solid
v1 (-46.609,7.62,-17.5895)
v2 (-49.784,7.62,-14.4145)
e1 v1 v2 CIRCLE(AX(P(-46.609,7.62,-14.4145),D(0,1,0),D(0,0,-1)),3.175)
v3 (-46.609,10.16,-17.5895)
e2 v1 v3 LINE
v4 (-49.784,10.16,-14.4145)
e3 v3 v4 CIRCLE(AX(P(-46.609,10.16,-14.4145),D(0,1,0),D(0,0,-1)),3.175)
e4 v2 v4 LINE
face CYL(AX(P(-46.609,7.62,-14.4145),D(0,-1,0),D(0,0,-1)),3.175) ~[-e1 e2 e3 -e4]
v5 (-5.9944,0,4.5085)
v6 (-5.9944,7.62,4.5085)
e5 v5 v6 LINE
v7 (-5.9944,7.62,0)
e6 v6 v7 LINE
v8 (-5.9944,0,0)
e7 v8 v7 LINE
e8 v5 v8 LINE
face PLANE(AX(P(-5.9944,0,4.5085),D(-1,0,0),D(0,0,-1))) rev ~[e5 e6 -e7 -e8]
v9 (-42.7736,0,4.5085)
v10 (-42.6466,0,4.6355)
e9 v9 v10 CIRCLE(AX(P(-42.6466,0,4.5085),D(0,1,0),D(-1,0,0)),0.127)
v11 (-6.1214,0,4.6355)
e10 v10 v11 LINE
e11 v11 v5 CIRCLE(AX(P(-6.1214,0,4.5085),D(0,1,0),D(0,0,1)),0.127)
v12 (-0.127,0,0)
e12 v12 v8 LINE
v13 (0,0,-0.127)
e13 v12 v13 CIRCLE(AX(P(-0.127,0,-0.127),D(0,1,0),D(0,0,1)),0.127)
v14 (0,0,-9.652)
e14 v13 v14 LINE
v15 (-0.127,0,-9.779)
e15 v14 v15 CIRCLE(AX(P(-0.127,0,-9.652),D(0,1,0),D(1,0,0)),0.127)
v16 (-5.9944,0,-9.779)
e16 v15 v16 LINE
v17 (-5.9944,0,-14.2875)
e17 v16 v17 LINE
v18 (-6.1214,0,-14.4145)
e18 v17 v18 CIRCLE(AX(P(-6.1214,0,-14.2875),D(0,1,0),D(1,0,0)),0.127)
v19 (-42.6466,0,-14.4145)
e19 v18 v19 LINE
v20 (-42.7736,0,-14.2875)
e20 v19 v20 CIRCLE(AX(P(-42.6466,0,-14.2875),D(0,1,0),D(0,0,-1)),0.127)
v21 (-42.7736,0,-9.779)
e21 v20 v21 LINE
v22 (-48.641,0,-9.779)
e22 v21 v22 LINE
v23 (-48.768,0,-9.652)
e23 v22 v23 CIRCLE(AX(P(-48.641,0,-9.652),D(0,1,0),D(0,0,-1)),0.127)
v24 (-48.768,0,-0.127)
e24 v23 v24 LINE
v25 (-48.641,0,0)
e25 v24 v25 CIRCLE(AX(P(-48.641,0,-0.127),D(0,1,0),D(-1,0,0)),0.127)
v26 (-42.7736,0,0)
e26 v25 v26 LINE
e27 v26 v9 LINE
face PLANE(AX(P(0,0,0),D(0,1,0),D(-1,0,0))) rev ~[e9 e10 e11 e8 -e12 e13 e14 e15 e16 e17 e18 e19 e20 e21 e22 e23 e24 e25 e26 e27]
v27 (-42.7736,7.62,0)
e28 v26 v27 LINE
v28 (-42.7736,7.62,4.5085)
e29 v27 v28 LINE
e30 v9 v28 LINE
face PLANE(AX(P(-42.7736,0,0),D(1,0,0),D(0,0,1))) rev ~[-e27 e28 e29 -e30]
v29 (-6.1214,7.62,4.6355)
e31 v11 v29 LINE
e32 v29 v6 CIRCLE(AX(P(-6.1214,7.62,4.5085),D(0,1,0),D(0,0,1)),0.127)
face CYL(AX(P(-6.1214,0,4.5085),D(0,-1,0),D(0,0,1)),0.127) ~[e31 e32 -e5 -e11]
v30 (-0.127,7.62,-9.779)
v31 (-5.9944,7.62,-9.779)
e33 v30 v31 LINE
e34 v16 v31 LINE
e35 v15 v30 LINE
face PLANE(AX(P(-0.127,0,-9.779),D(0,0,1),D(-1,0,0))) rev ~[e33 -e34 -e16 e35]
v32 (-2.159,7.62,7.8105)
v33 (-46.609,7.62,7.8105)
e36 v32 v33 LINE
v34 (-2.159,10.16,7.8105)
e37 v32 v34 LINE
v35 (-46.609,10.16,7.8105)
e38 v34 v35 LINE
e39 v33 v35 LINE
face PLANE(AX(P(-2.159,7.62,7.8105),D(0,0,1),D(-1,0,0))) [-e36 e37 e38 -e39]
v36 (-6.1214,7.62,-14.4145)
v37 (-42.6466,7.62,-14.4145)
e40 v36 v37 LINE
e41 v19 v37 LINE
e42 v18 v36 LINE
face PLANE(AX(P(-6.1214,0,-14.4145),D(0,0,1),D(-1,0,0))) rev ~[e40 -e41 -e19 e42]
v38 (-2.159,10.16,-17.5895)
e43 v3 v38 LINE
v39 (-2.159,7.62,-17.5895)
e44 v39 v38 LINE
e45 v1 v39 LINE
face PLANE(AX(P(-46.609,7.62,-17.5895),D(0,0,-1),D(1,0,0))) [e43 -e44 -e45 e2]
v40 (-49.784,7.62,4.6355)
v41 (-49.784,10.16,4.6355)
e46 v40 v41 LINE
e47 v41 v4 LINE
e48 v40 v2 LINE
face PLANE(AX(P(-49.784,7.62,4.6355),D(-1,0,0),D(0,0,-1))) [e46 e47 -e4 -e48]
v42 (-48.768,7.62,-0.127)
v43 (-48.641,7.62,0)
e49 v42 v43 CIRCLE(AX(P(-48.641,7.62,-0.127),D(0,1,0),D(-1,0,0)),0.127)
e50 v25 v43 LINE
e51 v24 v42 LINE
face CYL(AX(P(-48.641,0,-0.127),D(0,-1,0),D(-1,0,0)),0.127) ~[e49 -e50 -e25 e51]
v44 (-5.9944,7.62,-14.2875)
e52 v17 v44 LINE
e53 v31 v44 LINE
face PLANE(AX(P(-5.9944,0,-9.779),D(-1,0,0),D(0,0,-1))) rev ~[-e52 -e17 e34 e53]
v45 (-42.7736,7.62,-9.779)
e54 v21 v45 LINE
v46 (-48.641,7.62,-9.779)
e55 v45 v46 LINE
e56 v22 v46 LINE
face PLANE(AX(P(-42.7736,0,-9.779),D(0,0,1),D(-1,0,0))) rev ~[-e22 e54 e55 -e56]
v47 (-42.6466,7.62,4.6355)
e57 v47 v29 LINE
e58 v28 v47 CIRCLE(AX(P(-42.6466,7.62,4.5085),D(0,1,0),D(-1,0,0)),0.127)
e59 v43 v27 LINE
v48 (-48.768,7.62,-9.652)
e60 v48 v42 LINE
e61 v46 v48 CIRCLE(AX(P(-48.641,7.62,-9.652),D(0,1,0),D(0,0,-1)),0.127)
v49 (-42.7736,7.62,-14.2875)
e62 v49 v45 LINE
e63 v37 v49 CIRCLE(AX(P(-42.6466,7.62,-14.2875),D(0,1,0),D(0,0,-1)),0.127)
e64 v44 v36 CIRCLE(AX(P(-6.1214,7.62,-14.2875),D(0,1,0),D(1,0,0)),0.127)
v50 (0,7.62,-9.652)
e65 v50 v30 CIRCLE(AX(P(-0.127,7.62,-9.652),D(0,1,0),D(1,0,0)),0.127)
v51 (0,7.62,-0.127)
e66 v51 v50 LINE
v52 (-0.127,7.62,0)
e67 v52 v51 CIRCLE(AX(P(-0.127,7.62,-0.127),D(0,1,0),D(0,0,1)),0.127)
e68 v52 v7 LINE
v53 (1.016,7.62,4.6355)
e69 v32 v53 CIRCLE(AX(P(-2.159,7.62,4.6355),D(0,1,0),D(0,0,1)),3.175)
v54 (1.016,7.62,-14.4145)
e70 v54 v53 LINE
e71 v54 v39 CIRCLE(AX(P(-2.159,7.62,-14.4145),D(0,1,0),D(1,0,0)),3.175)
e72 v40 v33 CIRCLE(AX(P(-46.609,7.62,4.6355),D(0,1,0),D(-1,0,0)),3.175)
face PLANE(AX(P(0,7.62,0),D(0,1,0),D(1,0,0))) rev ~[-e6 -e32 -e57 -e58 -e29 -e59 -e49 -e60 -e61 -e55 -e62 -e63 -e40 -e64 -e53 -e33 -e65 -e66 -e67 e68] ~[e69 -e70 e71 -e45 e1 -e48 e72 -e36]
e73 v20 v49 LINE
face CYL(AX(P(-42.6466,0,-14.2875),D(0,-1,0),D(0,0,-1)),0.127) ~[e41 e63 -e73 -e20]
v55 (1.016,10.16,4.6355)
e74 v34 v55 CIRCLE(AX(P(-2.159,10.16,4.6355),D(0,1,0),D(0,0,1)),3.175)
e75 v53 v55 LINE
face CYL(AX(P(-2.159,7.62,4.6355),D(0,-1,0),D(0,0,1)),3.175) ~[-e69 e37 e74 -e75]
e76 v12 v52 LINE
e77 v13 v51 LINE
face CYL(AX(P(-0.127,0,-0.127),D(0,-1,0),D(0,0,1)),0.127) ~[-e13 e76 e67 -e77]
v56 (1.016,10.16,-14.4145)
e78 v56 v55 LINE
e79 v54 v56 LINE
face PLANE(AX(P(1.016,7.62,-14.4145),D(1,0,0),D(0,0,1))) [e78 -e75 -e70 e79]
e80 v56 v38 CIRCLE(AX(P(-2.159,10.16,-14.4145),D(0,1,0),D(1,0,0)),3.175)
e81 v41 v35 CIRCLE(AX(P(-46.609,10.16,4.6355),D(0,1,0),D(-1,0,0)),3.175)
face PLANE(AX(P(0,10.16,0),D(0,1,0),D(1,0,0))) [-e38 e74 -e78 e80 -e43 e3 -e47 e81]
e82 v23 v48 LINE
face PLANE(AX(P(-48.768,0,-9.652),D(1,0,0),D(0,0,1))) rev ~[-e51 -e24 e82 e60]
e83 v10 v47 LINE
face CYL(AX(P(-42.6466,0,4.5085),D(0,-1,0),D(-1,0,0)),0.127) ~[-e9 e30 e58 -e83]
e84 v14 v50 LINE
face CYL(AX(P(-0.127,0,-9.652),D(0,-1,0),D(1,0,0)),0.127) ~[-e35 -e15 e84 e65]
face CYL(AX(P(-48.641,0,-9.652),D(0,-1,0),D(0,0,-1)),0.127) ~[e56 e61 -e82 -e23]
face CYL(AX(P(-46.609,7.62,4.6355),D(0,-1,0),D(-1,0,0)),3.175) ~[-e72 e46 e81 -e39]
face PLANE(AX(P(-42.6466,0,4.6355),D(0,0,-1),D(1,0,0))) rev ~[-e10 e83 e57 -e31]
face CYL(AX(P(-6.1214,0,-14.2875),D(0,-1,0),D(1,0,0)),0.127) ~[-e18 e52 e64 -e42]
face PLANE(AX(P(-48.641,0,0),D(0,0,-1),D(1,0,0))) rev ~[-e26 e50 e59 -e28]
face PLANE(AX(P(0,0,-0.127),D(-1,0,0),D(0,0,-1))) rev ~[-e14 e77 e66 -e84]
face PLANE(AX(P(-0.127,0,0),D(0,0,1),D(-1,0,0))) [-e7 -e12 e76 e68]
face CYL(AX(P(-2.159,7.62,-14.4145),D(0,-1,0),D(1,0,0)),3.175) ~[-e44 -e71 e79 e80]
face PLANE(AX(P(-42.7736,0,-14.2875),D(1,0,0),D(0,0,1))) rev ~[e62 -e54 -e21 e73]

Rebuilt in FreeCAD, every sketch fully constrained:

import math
import FreeCAD as App
import Part
import Sketcher
from FreeCAD import Vector
Q = App.Units.Quantity

doc = App.newDocument("Part")
params = doc.addObject("Spreadsheet::Sheet", "Params")
for row, (alias, value) in enumerate([
    ("sketch1_radius", "0.005 in"),
    ("sketch1_width", "0.231 in"),
    ("pad1_length", "0.3 in"),
    ("sketch2_radius", "0.125 in"),
    ("sketch2_width", "1.75 in"),
    ("pad2_length", "0.1 in"),
], start=1):
    params.set(f"A{row}", alias)
    params.set(f"B{row}", "=" + value)
    params.setAlias(f"B{row}", alias)

body = doc.addObject("PartDesign::Body", "Body")

# Sketch on XZ plane
sketch1 = body.newObject("Sketcher::SketchObject", "Sketch")
sketch1.AttachmentSupport = (doc.getObject("XZ_Plane"), [""])
sketch1.MapMode = "FlatFace"
sketch1.addGeometry([
    Part.ArcOfCircle(Part.Circle(Vector(-0.127, -0.127, 0), Vector(0, 0, 1), 0.127), math.radians(0), math.radians(90)),  # 0
    Part.LineSegment(Vector(0, -0.127, 0), Vector(0, -9.652, 0)),  # 1
    Part.ArcOfCircle(Part.Circle(Vector(-0.127, -9.652, 0), Vector(0, 0, 1), 0.127), math.radians(-90), math.radians(0)),  # 2
    Part.LineSegment(Vector(-0.127, -9.779, 0), Vector(-5.9944, -9.779, 0)),  # 3
    Part.LineSegment(Vector(-5.9944, -9.779, 0), Vector(-5.9944, -14.2875, 0)),  # 4
    Part.ArcOfCircle(Part.Circle(Vector(-6.1214, -14.2875, 0), Vector(0, 0, 1), 0.127), math.radians(-90), math.radians(0)),  # 5
    Part.LineSegment(Vector(-6.1214, -14.4145, 0), Vector(-42.6466, -14.4145, 0)),  # 6
    Part.ArcOfCircle(Part.Circle(Vector(-42.6466, -14.2875, 0), Vector(0, 0, 1), 0.127), math.radians(180), math.radians(270)),  # 7
    Part.LineSegment(Vector(-42.7736, -14.2875, 0), Vector(-42.7736, -9.779, 0)),  # 8
    Part.LineSegment(Vector(-42.7736, -9.779, 0), Vector(-48.641, -9.779, 0)),  # 9
    Part.ArcOfCircle(Part.Circle(Vector(-48.641, -9.652, 0), Vector(0, 0, 1), 0.127), math.radians(180), math.radians(270)),  # 10
    Part.LineSegment(Vector(-48.768, -9.652, 0), Vector(-48.768, -0.127, 0)),  # 11
    Part.ArcOfCircle(Part.Circle(Vector(-48.641, -0.127, 0), Vector(0, 0, 1), 0.127), math.radians(90), math.radians(180)),  # 12
    Part.LineSegment(Vector(-48.641, 0, 0), Vector(-42.7736, 0, 0)),  # 13
    Part.LineSegment(Vector(-42.7736, 0, 0), Vector(-42.7736, 4.5085, 0)),  # 14
    Part.ArcOfCircle(Part.Circle(Vector(-42.6466, 4.5085, 0), Vector(0, 0, 1), 0.127), math.radians(90), math.radians(180)),  # 15
    Part.LineSegment(Vector(-42.6466, 4.6355, 0), Vector(-6.1214, 4.6355, 0)),  # 16
    Part.ArcOfCircle(Part.Circle(Vector(-6.1214, 4.5085, 0), Vector(0, 0, 1), 0.127), math.radians(0), math.radians(90)),  # 17
    Part.LineSegment(Vector(-5.9944, 4.5085, 0), Vector(-5.9944, 0, 0)),  # 18
    Part.LineSegment(Vector(-5.9944, 0, 0), Vector(-0.127, 0, 0)),  # 19
], False)
sketch1.addConstraint([
    Sketcher.Constraint("Tangent", 0, 1, 1, 1),
    Sketcher.Constraint("Tangent", 1, 2, 2, 2),
    Sketcher.Constraint("Tangent", 2, 1, 3, 1),
    Sketcher.Constraint("Coincident", 3, 2, 4, 1),
    Sketcher.Constraint("Tangent", 4, 2, 5, 2),
    Sketcher.Constraint("Tangent", 5, 1, 6, 1),
    Sketcher.Constraint("Tangent", 6, 2, 7, 2),
    Sketcher.Constraint("Tangent", 7, 1, 8, 1),
    Sketcher.Constraint("Coincident", 8, 2, 9, 1),
    Sketcher.Constraint("Tangent", 9, 2, 10, 2),
    Sketcher.Constraint("Tangent", 10, 1, 11, 1),
    Sketcher.Constraint("Tangent", 11, 2, 12, 2),
    Sketcher.Constraint("Tangent", 12, 1, 13, 1),
    Sketcher.Constraint("Coincident", 13, 2, 14, 1),
    Sketcher.Constraint("Tangent", 14, 2, 15, 2),
    Sketcher.Constraint("Tangent", 15, 1, 16, 1),
    Sketcher.Constraint("Tangent", 16, 2, 17, 2),
    Sketcher.Constraint("Tangent", 17, 1, 18, 1),
    Sketcher.Constraint("Coincident", 18, 2, 19, 1),
    Sketcher.Constraint("Tangent", 19, 2, 0, 2),
    Sketcher.Constraint("Vertical", 1),
    Sketcher.Constraint("Horizontal", 3),
    Sketcher.Constraint("Vertical", 4),
    Sketcher.Constraint("Horizontal", 6),
    Sketcher.Constraint("Vertical", 8),
    Sketcher.Constraint("Horizontal", 9),
    Sketcher.Constraint("Vertical", 11),
    Sketcher.Constraint("Horizontal", 13),
    Sketcher.Constraint("Vertical", 14),
    Sketcher.Constraint("Horizontal", 16),
    Sketcher.Constraint("Vertical", 18),
    Sketcher.Constraint("Horizontal", 19),
    Sketcher.Constraint("Equal", 0, 2),
    Sketcher.Constraint("Equal", 2, 5),
    Sketcher.Constraint("Equal", 5, 7),
    Sketcher.Constraint("Equal", 7, 10),
    Sketcher.Constraint("Equal", 10, 12),
    Sketcher.Constraint("Equal", 12, 15),
    Sketcher.Constraint("Equal", 15, 17),
    Sketcher.Constraint("PointOnObject", 0, 1, -2),
    Sketcher.Constraint("PointOnObject", 12, 1, -1),
    Sketcher.Constraint("PointOnObject", 18, 2, -1),
    Sketcher.Constraint("Horizontal", 2, 3, 10, 3),
    Sketcher.Constraint("Vertical", 7, 3, 15, 3),
    Sketcher.Constraint("Vertical", 5, 3, 17, 3),
    Sketcher.Constraint("Equal", 3, 9),
    Sketcher.Constraint("Equal", 8, 14),
    Sketcher.Constraint("Radius", 0, Q("0.005 in")),
    Sketcher.Constraint("DistanceX", 10, 1, -1, 1, Q("1.92 in")),
    Sketcher.Constraint("DistanceY", 2, 1, -1, 1, Q("0.385 in")),
    Sketcher.Constraint("DistanceX", 3, 2, 3, 1, Q("0.231 in")),
    Sketcher.Constraint("DistanceY", 7, 3, 15, 3, Q("0.74 in")),
])
sketch1.setExpression("Constraints[47]", "Params.sketch1_radius")
sketch1.setExpression("Constraints[50]", "Params.sketch1_width")
pad1 = body.newObject("PartDesign::Pad", "Pad")
pad1.Profile = sketch1
pad1.setExpression("Length", "Params.pad1_length")
pad1.Reversed = True

# Sketch on XZ plane
sketch2 = body.newObject("Sketcher::SketchObject", "Sketch001")
sketch2.AttachmentSupport = (doc.getObject("XZ_Plane"), [""])
sketch2.MapMode = "FlatFace"
sketch2.AttachmentOffset = App.Placement(Vector(0, 0, -0.3 * 25.4), App.Rotation())
sketch2.addGeometry([
    Part.LineSegment(Vector(-2.159, -17.5895, 0), Vector(-46.609, -17.5895, 0)),  # 0
    Part.ArcOfCircle(Part.Circle(Vector(-46.609, -14.4145, 0), Vector(0, 0, 1), 3.175), math.radians(180), math.radians(270)),  # 1
    Part.LineSegment(Vector(-49.784, -14.4145, 0), Vector(-49.784, 4.6355, 0)),  # 2
    Part.ArcOfCircle(Part.Circle(Vector(-46.609, 4.6355, 0), Vector(0, 0, 1), 3.175), math.radians(90), math.radians(180)),  # 3
    Part.LineSegment(Vector(-46.609, 7.8105, 0), Vector(-2.159, 7.8105, 0)),  # 4
    Part.ArcOfCircle(Part.Circle(Vector(-2.159, 4.6355, 0), Vector(0, 0, 1), 3.175), math.radians(0), math.radians(90)),  # 5
    Part.LineSegment(Vector(1.016, 4.6355, 0), Vector(1.016, -14.4145, 0)),  # 6
    Part.ArcOfCircle(Part.Circle(Vector(-2.159, -14.4145, 0), Vector(0, 0, 1), 3.175), math.radians(-90), math.radians(0)),  # 7
], False)
sketch2.addConstraint([
    Sketcher.Constraint("Tangent", 0, 2, 1, 2),
    Sketcher.Constraint("Tangent", 1, 1, 2, 1),
    Sketcher.Constraint("Tangent", 2, 2, 3, 2),
    Sketcher.Constraint("Tangent", 3, 1, 4, 1),
    Sketcher.Constraint("Tangent", 4, 2, 5, 2),
    Sketcher.Constraint("Tangent", 5, 1, 6, 1),
    Sketcher.Constraint("Tangent", 6, 2, 7, 2),
    Sketcher.Constraint("Tangent", 7, 1, 0, 1),
    Sketcher.Constraint("Horizontal", 0),
    Sketcher.Constraint("Vertical", 2),
    Sketcher.Constraint("Horizontal", 4),
    Sketcher.Constraint("Vertical", 6),
    Sketcher.Constraint("Equal", 1, 3),
    Sketcher.Constraint("Equal", 3, 5),
    Sketcher.Constraint("Equal", 5, 7),
    Sketcher.Constraint("Radius", 1, Q("0.125 in")),
    Sketcher.Constraint("DistanceY", 0, 2, 3, 1, Q("1 in")),
    Sketcher.Constraint("DistanceX", -1, 1, 5, 1, Q("0.04 in")),
    Sketcher.Constraint("DistanceX", 0, 2, 0, 1, Q("1.75 in")),
    Sketcher.Constraint("DistanceY", 1, 3, -1, 1, Q("0.5675 in")),
])
sketch2.setExpression("Constraints[15]", "Params.sketch2_radius")
sketch2.setExpression("Constraints[18]", "Params.sketch2_width")
pad2 = body.newObject("PartDesign::Pad", "Pad001")
pad2.Profile = sketch2
pad2.setExpression("Length", "Params.pad2_length")
pad2.Reversed = True

doc.recompute()
